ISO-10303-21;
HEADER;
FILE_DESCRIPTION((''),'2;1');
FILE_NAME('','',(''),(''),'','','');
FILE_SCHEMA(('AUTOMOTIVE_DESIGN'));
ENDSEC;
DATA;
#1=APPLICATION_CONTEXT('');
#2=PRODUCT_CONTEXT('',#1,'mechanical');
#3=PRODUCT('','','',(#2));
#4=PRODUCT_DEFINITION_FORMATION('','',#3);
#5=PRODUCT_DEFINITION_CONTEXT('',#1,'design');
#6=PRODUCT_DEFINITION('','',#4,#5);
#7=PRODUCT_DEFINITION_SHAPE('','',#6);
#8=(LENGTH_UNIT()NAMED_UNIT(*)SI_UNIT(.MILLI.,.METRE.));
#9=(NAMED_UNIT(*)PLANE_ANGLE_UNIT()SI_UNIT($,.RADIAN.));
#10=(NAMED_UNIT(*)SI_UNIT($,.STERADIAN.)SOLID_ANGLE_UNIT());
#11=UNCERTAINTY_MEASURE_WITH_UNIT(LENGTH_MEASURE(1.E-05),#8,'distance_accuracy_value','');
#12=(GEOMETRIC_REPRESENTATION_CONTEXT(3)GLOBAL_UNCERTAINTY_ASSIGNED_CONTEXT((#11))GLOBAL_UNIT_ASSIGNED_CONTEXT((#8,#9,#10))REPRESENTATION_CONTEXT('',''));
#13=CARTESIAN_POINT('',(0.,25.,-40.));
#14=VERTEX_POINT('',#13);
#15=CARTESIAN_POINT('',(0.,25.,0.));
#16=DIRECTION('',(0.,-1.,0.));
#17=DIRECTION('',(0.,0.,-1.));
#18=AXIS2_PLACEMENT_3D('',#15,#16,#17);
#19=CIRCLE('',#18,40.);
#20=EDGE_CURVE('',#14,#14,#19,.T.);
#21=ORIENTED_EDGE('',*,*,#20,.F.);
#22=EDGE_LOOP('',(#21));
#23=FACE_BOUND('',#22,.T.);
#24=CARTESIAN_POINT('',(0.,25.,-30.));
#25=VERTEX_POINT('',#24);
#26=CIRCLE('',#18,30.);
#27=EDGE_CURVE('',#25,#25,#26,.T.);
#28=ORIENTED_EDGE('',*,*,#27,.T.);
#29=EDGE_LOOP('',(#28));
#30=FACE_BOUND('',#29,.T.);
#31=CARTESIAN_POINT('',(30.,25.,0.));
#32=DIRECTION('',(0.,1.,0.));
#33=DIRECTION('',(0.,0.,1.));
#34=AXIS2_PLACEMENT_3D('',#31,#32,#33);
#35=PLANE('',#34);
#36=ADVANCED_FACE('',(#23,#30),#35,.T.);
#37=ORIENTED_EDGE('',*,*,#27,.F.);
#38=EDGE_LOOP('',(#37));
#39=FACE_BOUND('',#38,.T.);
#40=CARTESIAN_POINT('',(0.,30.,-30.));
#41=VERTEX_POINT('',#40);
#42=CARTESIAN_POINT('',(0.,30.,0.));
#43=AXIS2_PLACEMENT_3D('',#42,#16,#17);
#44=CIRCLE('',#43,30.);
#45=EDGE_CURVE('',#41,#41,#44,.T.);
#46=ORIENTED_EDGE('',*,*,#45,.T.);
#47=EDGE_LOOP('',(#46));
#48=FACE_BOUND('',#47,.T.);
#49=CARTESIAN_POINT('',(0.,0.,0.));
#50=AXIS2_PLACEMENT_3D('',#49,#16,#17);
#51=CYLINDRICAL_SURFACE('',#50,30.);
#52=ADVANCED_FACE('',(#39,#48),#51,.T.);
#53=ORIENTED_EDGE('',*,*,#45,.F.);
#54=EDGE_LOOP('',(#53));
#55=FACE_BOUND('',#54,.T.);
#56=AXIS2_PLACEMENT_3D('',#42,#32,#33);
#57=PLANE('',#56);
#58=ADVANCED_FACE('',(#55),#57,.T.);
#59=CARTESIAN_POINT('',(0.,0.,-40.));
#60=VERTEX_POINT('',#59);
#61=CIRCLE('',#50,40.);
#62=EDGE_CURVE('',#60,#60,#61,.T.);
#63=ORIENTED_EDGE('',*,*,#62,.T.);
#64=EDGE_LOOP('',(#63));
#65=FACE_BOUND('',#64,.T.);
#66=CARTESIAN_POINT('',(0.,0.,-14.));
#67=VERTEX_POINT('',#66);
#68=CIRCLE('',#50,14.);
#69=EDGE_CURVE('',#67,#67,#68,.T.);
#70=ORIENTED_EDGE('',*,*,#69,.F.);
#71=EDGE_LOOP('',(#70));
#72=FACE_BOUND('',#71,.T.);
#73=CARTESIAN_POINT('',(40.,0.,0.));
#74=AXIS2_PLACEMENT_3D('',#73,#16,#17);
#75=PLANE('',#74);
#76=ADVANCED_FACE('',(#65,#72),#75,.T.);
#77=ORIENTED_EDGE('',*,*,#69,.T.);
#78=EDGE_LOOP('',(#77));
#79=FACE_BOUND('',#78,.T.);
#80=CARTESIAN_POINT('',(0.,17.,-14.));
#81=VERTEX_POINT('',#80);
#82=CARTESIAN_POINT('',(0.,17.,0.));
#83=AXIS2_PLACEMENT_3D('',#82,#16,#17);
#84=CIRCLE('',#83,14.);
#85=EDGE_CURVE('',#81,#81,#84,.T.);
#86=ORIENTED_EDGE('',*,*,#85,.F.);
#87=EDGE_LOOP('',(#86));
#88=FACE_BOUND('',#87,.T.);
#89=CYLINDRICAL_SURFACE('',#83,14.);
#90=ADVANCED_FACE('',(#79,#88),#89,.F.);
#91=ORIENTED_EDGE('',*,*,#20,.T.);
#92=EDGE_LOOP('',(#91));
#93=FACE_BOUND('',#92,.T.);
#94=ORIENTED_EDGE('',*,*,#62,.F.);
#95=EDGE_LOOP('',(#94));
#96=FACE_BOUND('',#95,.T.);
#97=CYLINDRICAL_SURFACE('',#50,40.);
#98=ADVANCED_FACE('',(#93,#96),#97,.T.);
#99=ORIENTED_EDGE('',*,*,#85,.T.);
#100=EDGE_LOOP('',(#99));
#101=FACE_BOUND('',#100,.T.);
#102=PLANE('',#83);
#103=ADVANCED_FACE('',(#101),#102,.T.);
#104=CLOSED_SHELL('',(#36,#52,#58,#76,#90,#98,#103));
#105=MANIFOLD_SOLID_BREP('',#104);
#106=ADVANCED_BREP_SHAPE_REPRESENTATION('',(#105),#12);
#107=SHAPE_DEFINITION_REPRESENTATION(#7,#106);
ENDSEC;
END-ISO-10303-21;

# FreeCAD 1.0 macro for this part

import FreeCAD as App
import Part
import Sketcher

V = App.Vector


def add_polygon(sketch, points):
    """Adds a closed chain of lines whose ends are joined by coincident constraints."""
    first, n = sketch.GeometryCount, len(points)
    for a, b in zip(points, points[1:] + points[:1]):
        sketch.addGeometry(Part.LineSegment(App.Vector(*a, 0), App.Vector(*b, 0)), False)
    for i in range(n):
        sketch.addConstraint(Sketcher.Constraint("Coincident", first + i, 2, first + (i + 1) % n, 1))

doc = App.newDocument("Part")
body = doc.addObject("PartDesign::Body", "Body")

# Sketch on XY plane
sketch1 = body.newObject("Sketcher::SketchObject", "Sketch")
sketch1.AttachmentSupport = (doc.getObject("XY_Plane"), [""])
sketch1.MapMode = "FlatFace"
add_polygon(sketch1, [(0, 30), (0, 0), (40, 0), (40, 25), (30, 25), (30, 30)])  # lines 0-5
sketch1.addConstraint([
    Sketcher.Constraint("Vertical", 0),
    Sketcher.Constraint("Horizontal", 1),
    Sketcher.Constraint("Vertical", 2),
    Sketcher.Constraint("Horizontal", 3),
    Sketcher.Constraint("Vertical", 4),
    Sketcher.Constraint("Horizontal", 5),
    Sketcher.Constraint("Coincident", 0, 2, -1, 1),
    Sketcher.Constraint("Equal", 5, 0),
    Sketcher.Constraint("DistanceX", 1, 1, 1, 2, 40.0),
    Sketcher.Constraint("DistanceX", 3, 2, 3, 1, 10.0),
    Sketcher.Constraint("DistanceY", 2, 1, 2, 2, 25.0),
])
revolution = body.newObject("PartDesign::Revolution", "Revolution")
revolution.Profile = sketch1
revolution.ReferenceAxis = (sketch1, ["V_Axis"])
revolution.Angle = 360

# Sketch on XZ plane
sketch2 = body.newObject("Sketcher::SketchObject", "Sketch001")
sketch2.AttachmentSupport = (doc.getObject("XZ_Plane"), [""])
sketch2.MapMode = "FlatFace"
sketch2.addGeometry(Part.Circle(V(0, 0, 0), V(0, 0, 1), 14), False)
sketch2.addConstraint([
    Sketcher.Constraint("Coincident", 0, 3, -1, 1),
    Sketcher.Constraint("Diameter", 0, 28.0),
])
pocket1 = body.newObject("PartDesign::Pocket", "Pocket")
pocket1.Profile = sketch2
pocket1.Length = 17

doc.recompute()
